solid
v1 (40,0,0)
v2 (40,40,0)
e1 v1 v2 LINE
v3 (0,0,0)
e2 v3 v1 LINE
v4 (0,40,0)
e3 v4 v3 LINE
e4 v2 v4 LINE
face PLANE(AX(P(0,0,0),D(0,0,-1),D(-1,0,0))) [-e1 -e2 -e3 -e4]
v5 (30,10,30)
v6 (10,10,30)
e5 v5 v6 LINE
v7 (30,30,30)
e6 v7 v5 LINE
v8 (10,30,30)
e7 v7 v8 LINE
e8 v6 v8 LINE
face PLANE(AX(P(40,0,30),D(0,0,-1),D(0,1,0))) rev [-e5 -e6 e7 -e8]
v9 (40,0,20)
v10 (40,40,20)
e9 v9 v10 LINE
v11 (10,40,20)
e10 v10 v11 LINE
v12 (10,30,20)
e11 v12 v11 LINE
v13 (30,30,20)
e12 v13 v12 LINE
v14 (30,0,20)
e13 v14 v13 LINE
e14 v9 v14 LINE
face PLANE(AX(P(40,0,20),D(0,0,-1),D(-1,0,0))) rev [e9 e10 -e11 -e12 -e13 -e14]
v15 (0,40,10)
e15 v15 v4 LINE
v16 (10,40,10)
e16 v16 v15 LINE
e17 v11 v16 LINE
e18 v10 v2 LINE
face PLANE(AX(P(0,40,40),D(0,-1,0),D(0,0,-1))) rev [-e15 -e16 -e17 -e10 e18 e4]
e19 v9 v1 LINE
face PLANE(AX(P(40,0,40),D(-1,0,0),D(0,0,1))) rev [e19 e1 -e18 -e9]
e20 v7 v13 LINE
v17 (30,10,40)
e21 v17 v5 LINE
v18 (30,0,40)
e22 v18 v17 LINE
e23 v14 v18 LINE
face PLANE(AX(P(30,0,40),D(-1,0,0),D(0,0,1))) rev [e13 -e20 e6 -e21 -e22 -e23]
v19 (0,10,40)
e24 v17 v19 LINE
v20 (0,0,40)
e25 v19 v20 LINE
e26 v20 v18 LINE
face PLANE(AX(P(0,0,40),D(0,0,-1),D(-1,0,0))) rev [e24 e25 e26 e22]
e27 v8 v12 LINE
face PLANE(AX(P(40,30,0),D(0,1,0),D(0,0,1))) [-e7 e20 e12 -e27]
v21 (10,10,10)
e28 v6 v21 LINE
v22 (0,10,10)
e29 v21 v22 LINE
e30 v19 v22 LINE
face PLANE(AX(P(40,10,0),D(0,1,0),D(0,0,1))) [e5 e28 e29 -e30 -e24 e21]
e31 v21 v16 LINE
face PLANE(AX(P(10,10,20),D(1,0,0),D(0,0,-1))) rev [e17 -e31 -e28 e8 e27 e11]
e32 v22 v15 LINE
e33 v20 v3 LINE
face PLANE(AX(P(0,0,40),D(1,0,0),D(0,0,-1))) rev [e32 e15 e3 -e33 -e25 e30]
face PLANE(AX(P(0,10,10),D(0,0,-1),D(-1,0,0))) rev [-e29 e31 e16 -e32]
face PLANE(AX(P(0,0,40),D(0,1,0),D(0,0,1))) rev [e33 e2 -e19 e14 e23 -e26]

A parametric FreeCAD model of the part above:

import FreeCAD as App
import Part
import Sketcher

V = App.Vector

doc = App.newDocument("Part")
body = doc.addObject("PartDesign::Body", "Body")

# Sketch on XY plane
sketch1 = body.newObject("Sketcher::SketchObject", "Sketch")
sketch1.AttachmentSupport = (doc.getObject("XY_Plane"), [""])
sketch1.MapMode = "FlatFace"
sketch1.addGeometry([
    Part.LineSegment(V(0, 40, 0), V(0, 0, 0)),
    Part.LineSegment(V(0, 0, 0), V(40, 0, 0)),
    Part.LineSegment(V(40, 0, 0), V(40, 40, 0)),
    Part.LineSegment(V(40, 40, 0), V(0, 40, 0)),
], False)
sketch1.addConstraint([
    Sketcher.Constraint("Coincident", 0, 2, 1, 1),
    Sketcher.Constraint("Coincident", 1, 2, 2, 1),
    Sketcher.Constraint("Coincident", 2, 2, 3, 1),
    Sketcher.Constraint("Coincident", 3, 2, 0, 1),
    Sketcher.Constraint("Vertical", 0),
    Sketcher.Constraint("Horizontal", 1),
    Sketcher.Constraint("Vertical", 2),
    Sketcher.Constraint("Horizontal", 3),
    Sketcher.Constraint("Coincident", 0, 2, -1, 1),
    Sketcher.Constraint("Equal", 3, 0),
    Sketcher.Constraint("DistanceX", 1, 1, 1, 2, 40.0),
])
pad1 = body.newObject("PartDesign::Pad", "Pad")
pad1.Profile = sketch1
pad1.Length = 40

# Sketch on XZ plane
sketch2 = body.newObject("Sketcher::SketchObject", "Sketch001")
sketch2.AttachmentSupport = (doc.getObject("XZ_Plane"), [""])
sketch2.MapMode = "FlatFace"
sketch2.AttachmentOffset = App.Placement(V(0, 0, -40), App.Rotation())
sketch2.addGeometry([
    Part.LineSegment(V(30, 20, 0), V(30, 40, 0)),
    Part.LineSegment(V(30, 40, 0), V(40, 40, 0)),
    Part.LineSegment(V(40, 40, 0), V(40, 20, 0)),
    Part.LineSegment(V(40, 20, 0), V(30, 20, 0)),
], False)
sketch2.addConstraint([
    Sketcher.Constraint("Coincident", 0, 2, 1, 1),
    Sketcher.Constraint("Coincident", 1, 2, 2, 1),
    Sketcher.Constraint("Coincident", 2, 2, 3, 1),
    Sketcher.Constraint("Coincident", 3, 2, 0, 1),
    Sketcher.Constraint("Vertical", 0),
    Sketcher.Constraint("Horizontal", 1),
    Sketcher.Constraint("Vertical", 2),
    Sketcher.Constraint("Horizontal", 3),
    Sketcher.Constraint("DistanceX", 1, 1, 1, 2, 10.0),
    Sketcher.Constraint("DistanceY", 0, 1, 0, 2, 20.0),
    Sketcher.Constraint("DistanceX", -1, 1, 0, 2, 30.0),
    Sketcher.Constraint("DistanceY", -1, 1, 0, 2, 40.0),
])
pocket1 = body.newObject("PartDesign::Pocket", "Pocket")
pocket1.Profile = sketch2
pocket1.Length = 40
pocket1.Reversed = True

# Sketch on YZ plane
sketch3 = body.newObject("Sketcher::SketchObject", "Sketch002")
sketch3.AttachmentSupport = (doc.getObject("YZ_Plane"), [""])
sketch3.MapMode = "FlatFace"
sketch3.addGeometry([
    Part.LineSegment(V(40, 20, 0), V(30, 20, 0)),  # 0
    Part.LineSegment(V(30, 20, 0), V(30, 30, 0)),  # 1
    Part.LineSegment(V(30, 30, 0), V(10, 30, 0)),  # 2
    Part.LineSegment(V(10, 30, 0), V(10, 40, 0)),  # 3
    Part.LineSegment(V(10, 40, 0), V(40, 40, 0)),  # 4
    Part.LineSegment(V(40, 40, 0), V(40, 20, 0)),  # 5
], False)
sketch3.addConstraint([
    Sketcher.Constraint("Coincident", 0, 2, 1, 1),
    Sketcher.Constraint("Coincident", 1, 2, 2, 1),
    Sketcher.Constraint("Coincident", 2, 2, 3, 1),
    Sketcher.Constraint("Coincident", 3, 2, 4, 1),
    Sketcher.Constraint("Coincident", 4, 2, 5, 1),
    Sketcher.Constraint("Coincident", 5, 2, 0, 1),
    Sketcher.Constraint("Horizontal", 0),
    Sketcher.Constraint("Vertical", 1),
    Sketcher.Constraint("Horizontal", 2),
    Sketcher.Constraint("Vertical", 3),
    Sketcher.Constraint("Horizontal", 4),
    Sketcher.Constraint("Vertical", 5),
    Sketcher.Constraint("Equal", 0, 1),
    Sketcher.Constraint("Equal", 1, 3),
    Sketcher.Constraint("Equal", 2, 5),
    Sketcher.Constraint("DistanceX", 0, 2, 0, 1, 10.0),
    Sketcher.Constraint("DistanceX", -1, 1, 0, 2, 30.0),
    Sketcher.Constraint("DistanceY", -1, 1, 0, 2, 20.0),
])
pocket2 = body.newObject("PartDesign::Pocket", "Pocket001")
pocket2.Profile = sketch3
pocket2.Length = 40
pocket2.Reversed = True

# Sketch on XZ plane
sketch4 = body.newObject("Sketcher::SketchObject", "Sketch003")
sketch4.AttachmentSupport = (doc.getObject("XZ_Plane"), [""])
sketch4.MapMode = "FlatFace"
sketch4.AttachmentOffset = App.Placement(V(0, 0, -30), App.Rotation())
sketch4.addGeometry([
    Part.LineSegment(V(0, 20, 0), V(0, 30, 0)),
    Part.LineSegment(V(0, 30, 0), V(10, 30, 0)),
    Part.LineSegment(V(10, 30, 0), V(10, 20, 0)),
    Part.LineSegment(V(10, 20, 0), V(0, 20, 0)),
], False)
sketch4.addConstraint([
    Sketcher.Constraint("Coincident", 0, 2, 1, 1),
    Sketcher.Constraint("Coincident", 1, 2, 2, 1),
    Sketcher.Constraint("Coincident", 2, 2, 3, 1),
    Sketcher.Constraint("Coincident", 3, 2, 0, 1),
    Sketcher.Constraint("Vertical", 0),
    Sketcher.Constraint("Horizontal", 1),
    Sketcher.Constraint("Vertical", 2),
    Sketcher.Constraint("Horizontal", 3),
    Sketcher.Constraint("PointOnObject", 0, 2, -2),
    Sketcher.Constraint("Equal", 3, 0),
    Sketcher.Constraint("DistanceX", 1, 1, 1, 2, 10.0),
    Sketcher.Constraint("DistanceY", -1, 1, 0, 2, 30.0),
])
pocket3 = body.newObject("PartDesign::Pocket", "Pocket002")
pocket3.Profile = sketch4
pocket3.Length = 20
pocket3.Reversed = True

# Sketch on XZ plane
sketch5 = body.newObject("Sketcher::SketchObject", "Sketch004")
sketch5.AttachmentSupport = (doc.getObject("XZ_Plane"), [""])
sketch5.MapMode = "FlatFace"
sketch5.AttachmentOffset = App.Placement(V(0, 0, -40), App.Rotation())
sketch5.addGeometry([
    Part.LineSegment(V(0, 10, 0), V(0, 20, 0)),
    Part.LineSegment(V(0, 20, 0), V(10, 20, 0)),
    Part.LineSegment(V(10, 20, 0), V(10, 10, 0)),
    Part.LineSegment(V(10, 10, 0), V(0, 10, 0)),
], False)
sketch5.addConstraint([
    Sketcher.Constraint("Coincident", 0, 2, 1, 1),
    Sketcher.Constraint("Coincident", 1, 2, 2, 1),
    Sketcher.Constraint("Coincident", 2, 2, 3, 1),
    Sketcher.Constraint("Coincident", 3, 2, 0, 1),
    Sketcher.Constraint("Vertical", 0),
    Sketcher.Constraint("Horizontal", 1),
    Sketcher.Constraint("Vertical", 2),
    Sketcher.Constraint("Horizontal", 3),
    Sketcher.Constraint("PointOnObject", 0, 2, -2),
    Sketcher.Constraint("Equal", 3, 0),
    Sketcher.Constraint("DistanceX", 1, 1, 1, 2, 10.0),
    Sketcher.Constraint("DistanceY", -1, 1, 0, 2, 20.0),
])
pocket4 = body.newObject("PartDesign::Pocket", "Pocket003")
pocket4.Profile = sketch5
pocket4.Length = 30
pocket4.Reversed = True

doc.recompute()
